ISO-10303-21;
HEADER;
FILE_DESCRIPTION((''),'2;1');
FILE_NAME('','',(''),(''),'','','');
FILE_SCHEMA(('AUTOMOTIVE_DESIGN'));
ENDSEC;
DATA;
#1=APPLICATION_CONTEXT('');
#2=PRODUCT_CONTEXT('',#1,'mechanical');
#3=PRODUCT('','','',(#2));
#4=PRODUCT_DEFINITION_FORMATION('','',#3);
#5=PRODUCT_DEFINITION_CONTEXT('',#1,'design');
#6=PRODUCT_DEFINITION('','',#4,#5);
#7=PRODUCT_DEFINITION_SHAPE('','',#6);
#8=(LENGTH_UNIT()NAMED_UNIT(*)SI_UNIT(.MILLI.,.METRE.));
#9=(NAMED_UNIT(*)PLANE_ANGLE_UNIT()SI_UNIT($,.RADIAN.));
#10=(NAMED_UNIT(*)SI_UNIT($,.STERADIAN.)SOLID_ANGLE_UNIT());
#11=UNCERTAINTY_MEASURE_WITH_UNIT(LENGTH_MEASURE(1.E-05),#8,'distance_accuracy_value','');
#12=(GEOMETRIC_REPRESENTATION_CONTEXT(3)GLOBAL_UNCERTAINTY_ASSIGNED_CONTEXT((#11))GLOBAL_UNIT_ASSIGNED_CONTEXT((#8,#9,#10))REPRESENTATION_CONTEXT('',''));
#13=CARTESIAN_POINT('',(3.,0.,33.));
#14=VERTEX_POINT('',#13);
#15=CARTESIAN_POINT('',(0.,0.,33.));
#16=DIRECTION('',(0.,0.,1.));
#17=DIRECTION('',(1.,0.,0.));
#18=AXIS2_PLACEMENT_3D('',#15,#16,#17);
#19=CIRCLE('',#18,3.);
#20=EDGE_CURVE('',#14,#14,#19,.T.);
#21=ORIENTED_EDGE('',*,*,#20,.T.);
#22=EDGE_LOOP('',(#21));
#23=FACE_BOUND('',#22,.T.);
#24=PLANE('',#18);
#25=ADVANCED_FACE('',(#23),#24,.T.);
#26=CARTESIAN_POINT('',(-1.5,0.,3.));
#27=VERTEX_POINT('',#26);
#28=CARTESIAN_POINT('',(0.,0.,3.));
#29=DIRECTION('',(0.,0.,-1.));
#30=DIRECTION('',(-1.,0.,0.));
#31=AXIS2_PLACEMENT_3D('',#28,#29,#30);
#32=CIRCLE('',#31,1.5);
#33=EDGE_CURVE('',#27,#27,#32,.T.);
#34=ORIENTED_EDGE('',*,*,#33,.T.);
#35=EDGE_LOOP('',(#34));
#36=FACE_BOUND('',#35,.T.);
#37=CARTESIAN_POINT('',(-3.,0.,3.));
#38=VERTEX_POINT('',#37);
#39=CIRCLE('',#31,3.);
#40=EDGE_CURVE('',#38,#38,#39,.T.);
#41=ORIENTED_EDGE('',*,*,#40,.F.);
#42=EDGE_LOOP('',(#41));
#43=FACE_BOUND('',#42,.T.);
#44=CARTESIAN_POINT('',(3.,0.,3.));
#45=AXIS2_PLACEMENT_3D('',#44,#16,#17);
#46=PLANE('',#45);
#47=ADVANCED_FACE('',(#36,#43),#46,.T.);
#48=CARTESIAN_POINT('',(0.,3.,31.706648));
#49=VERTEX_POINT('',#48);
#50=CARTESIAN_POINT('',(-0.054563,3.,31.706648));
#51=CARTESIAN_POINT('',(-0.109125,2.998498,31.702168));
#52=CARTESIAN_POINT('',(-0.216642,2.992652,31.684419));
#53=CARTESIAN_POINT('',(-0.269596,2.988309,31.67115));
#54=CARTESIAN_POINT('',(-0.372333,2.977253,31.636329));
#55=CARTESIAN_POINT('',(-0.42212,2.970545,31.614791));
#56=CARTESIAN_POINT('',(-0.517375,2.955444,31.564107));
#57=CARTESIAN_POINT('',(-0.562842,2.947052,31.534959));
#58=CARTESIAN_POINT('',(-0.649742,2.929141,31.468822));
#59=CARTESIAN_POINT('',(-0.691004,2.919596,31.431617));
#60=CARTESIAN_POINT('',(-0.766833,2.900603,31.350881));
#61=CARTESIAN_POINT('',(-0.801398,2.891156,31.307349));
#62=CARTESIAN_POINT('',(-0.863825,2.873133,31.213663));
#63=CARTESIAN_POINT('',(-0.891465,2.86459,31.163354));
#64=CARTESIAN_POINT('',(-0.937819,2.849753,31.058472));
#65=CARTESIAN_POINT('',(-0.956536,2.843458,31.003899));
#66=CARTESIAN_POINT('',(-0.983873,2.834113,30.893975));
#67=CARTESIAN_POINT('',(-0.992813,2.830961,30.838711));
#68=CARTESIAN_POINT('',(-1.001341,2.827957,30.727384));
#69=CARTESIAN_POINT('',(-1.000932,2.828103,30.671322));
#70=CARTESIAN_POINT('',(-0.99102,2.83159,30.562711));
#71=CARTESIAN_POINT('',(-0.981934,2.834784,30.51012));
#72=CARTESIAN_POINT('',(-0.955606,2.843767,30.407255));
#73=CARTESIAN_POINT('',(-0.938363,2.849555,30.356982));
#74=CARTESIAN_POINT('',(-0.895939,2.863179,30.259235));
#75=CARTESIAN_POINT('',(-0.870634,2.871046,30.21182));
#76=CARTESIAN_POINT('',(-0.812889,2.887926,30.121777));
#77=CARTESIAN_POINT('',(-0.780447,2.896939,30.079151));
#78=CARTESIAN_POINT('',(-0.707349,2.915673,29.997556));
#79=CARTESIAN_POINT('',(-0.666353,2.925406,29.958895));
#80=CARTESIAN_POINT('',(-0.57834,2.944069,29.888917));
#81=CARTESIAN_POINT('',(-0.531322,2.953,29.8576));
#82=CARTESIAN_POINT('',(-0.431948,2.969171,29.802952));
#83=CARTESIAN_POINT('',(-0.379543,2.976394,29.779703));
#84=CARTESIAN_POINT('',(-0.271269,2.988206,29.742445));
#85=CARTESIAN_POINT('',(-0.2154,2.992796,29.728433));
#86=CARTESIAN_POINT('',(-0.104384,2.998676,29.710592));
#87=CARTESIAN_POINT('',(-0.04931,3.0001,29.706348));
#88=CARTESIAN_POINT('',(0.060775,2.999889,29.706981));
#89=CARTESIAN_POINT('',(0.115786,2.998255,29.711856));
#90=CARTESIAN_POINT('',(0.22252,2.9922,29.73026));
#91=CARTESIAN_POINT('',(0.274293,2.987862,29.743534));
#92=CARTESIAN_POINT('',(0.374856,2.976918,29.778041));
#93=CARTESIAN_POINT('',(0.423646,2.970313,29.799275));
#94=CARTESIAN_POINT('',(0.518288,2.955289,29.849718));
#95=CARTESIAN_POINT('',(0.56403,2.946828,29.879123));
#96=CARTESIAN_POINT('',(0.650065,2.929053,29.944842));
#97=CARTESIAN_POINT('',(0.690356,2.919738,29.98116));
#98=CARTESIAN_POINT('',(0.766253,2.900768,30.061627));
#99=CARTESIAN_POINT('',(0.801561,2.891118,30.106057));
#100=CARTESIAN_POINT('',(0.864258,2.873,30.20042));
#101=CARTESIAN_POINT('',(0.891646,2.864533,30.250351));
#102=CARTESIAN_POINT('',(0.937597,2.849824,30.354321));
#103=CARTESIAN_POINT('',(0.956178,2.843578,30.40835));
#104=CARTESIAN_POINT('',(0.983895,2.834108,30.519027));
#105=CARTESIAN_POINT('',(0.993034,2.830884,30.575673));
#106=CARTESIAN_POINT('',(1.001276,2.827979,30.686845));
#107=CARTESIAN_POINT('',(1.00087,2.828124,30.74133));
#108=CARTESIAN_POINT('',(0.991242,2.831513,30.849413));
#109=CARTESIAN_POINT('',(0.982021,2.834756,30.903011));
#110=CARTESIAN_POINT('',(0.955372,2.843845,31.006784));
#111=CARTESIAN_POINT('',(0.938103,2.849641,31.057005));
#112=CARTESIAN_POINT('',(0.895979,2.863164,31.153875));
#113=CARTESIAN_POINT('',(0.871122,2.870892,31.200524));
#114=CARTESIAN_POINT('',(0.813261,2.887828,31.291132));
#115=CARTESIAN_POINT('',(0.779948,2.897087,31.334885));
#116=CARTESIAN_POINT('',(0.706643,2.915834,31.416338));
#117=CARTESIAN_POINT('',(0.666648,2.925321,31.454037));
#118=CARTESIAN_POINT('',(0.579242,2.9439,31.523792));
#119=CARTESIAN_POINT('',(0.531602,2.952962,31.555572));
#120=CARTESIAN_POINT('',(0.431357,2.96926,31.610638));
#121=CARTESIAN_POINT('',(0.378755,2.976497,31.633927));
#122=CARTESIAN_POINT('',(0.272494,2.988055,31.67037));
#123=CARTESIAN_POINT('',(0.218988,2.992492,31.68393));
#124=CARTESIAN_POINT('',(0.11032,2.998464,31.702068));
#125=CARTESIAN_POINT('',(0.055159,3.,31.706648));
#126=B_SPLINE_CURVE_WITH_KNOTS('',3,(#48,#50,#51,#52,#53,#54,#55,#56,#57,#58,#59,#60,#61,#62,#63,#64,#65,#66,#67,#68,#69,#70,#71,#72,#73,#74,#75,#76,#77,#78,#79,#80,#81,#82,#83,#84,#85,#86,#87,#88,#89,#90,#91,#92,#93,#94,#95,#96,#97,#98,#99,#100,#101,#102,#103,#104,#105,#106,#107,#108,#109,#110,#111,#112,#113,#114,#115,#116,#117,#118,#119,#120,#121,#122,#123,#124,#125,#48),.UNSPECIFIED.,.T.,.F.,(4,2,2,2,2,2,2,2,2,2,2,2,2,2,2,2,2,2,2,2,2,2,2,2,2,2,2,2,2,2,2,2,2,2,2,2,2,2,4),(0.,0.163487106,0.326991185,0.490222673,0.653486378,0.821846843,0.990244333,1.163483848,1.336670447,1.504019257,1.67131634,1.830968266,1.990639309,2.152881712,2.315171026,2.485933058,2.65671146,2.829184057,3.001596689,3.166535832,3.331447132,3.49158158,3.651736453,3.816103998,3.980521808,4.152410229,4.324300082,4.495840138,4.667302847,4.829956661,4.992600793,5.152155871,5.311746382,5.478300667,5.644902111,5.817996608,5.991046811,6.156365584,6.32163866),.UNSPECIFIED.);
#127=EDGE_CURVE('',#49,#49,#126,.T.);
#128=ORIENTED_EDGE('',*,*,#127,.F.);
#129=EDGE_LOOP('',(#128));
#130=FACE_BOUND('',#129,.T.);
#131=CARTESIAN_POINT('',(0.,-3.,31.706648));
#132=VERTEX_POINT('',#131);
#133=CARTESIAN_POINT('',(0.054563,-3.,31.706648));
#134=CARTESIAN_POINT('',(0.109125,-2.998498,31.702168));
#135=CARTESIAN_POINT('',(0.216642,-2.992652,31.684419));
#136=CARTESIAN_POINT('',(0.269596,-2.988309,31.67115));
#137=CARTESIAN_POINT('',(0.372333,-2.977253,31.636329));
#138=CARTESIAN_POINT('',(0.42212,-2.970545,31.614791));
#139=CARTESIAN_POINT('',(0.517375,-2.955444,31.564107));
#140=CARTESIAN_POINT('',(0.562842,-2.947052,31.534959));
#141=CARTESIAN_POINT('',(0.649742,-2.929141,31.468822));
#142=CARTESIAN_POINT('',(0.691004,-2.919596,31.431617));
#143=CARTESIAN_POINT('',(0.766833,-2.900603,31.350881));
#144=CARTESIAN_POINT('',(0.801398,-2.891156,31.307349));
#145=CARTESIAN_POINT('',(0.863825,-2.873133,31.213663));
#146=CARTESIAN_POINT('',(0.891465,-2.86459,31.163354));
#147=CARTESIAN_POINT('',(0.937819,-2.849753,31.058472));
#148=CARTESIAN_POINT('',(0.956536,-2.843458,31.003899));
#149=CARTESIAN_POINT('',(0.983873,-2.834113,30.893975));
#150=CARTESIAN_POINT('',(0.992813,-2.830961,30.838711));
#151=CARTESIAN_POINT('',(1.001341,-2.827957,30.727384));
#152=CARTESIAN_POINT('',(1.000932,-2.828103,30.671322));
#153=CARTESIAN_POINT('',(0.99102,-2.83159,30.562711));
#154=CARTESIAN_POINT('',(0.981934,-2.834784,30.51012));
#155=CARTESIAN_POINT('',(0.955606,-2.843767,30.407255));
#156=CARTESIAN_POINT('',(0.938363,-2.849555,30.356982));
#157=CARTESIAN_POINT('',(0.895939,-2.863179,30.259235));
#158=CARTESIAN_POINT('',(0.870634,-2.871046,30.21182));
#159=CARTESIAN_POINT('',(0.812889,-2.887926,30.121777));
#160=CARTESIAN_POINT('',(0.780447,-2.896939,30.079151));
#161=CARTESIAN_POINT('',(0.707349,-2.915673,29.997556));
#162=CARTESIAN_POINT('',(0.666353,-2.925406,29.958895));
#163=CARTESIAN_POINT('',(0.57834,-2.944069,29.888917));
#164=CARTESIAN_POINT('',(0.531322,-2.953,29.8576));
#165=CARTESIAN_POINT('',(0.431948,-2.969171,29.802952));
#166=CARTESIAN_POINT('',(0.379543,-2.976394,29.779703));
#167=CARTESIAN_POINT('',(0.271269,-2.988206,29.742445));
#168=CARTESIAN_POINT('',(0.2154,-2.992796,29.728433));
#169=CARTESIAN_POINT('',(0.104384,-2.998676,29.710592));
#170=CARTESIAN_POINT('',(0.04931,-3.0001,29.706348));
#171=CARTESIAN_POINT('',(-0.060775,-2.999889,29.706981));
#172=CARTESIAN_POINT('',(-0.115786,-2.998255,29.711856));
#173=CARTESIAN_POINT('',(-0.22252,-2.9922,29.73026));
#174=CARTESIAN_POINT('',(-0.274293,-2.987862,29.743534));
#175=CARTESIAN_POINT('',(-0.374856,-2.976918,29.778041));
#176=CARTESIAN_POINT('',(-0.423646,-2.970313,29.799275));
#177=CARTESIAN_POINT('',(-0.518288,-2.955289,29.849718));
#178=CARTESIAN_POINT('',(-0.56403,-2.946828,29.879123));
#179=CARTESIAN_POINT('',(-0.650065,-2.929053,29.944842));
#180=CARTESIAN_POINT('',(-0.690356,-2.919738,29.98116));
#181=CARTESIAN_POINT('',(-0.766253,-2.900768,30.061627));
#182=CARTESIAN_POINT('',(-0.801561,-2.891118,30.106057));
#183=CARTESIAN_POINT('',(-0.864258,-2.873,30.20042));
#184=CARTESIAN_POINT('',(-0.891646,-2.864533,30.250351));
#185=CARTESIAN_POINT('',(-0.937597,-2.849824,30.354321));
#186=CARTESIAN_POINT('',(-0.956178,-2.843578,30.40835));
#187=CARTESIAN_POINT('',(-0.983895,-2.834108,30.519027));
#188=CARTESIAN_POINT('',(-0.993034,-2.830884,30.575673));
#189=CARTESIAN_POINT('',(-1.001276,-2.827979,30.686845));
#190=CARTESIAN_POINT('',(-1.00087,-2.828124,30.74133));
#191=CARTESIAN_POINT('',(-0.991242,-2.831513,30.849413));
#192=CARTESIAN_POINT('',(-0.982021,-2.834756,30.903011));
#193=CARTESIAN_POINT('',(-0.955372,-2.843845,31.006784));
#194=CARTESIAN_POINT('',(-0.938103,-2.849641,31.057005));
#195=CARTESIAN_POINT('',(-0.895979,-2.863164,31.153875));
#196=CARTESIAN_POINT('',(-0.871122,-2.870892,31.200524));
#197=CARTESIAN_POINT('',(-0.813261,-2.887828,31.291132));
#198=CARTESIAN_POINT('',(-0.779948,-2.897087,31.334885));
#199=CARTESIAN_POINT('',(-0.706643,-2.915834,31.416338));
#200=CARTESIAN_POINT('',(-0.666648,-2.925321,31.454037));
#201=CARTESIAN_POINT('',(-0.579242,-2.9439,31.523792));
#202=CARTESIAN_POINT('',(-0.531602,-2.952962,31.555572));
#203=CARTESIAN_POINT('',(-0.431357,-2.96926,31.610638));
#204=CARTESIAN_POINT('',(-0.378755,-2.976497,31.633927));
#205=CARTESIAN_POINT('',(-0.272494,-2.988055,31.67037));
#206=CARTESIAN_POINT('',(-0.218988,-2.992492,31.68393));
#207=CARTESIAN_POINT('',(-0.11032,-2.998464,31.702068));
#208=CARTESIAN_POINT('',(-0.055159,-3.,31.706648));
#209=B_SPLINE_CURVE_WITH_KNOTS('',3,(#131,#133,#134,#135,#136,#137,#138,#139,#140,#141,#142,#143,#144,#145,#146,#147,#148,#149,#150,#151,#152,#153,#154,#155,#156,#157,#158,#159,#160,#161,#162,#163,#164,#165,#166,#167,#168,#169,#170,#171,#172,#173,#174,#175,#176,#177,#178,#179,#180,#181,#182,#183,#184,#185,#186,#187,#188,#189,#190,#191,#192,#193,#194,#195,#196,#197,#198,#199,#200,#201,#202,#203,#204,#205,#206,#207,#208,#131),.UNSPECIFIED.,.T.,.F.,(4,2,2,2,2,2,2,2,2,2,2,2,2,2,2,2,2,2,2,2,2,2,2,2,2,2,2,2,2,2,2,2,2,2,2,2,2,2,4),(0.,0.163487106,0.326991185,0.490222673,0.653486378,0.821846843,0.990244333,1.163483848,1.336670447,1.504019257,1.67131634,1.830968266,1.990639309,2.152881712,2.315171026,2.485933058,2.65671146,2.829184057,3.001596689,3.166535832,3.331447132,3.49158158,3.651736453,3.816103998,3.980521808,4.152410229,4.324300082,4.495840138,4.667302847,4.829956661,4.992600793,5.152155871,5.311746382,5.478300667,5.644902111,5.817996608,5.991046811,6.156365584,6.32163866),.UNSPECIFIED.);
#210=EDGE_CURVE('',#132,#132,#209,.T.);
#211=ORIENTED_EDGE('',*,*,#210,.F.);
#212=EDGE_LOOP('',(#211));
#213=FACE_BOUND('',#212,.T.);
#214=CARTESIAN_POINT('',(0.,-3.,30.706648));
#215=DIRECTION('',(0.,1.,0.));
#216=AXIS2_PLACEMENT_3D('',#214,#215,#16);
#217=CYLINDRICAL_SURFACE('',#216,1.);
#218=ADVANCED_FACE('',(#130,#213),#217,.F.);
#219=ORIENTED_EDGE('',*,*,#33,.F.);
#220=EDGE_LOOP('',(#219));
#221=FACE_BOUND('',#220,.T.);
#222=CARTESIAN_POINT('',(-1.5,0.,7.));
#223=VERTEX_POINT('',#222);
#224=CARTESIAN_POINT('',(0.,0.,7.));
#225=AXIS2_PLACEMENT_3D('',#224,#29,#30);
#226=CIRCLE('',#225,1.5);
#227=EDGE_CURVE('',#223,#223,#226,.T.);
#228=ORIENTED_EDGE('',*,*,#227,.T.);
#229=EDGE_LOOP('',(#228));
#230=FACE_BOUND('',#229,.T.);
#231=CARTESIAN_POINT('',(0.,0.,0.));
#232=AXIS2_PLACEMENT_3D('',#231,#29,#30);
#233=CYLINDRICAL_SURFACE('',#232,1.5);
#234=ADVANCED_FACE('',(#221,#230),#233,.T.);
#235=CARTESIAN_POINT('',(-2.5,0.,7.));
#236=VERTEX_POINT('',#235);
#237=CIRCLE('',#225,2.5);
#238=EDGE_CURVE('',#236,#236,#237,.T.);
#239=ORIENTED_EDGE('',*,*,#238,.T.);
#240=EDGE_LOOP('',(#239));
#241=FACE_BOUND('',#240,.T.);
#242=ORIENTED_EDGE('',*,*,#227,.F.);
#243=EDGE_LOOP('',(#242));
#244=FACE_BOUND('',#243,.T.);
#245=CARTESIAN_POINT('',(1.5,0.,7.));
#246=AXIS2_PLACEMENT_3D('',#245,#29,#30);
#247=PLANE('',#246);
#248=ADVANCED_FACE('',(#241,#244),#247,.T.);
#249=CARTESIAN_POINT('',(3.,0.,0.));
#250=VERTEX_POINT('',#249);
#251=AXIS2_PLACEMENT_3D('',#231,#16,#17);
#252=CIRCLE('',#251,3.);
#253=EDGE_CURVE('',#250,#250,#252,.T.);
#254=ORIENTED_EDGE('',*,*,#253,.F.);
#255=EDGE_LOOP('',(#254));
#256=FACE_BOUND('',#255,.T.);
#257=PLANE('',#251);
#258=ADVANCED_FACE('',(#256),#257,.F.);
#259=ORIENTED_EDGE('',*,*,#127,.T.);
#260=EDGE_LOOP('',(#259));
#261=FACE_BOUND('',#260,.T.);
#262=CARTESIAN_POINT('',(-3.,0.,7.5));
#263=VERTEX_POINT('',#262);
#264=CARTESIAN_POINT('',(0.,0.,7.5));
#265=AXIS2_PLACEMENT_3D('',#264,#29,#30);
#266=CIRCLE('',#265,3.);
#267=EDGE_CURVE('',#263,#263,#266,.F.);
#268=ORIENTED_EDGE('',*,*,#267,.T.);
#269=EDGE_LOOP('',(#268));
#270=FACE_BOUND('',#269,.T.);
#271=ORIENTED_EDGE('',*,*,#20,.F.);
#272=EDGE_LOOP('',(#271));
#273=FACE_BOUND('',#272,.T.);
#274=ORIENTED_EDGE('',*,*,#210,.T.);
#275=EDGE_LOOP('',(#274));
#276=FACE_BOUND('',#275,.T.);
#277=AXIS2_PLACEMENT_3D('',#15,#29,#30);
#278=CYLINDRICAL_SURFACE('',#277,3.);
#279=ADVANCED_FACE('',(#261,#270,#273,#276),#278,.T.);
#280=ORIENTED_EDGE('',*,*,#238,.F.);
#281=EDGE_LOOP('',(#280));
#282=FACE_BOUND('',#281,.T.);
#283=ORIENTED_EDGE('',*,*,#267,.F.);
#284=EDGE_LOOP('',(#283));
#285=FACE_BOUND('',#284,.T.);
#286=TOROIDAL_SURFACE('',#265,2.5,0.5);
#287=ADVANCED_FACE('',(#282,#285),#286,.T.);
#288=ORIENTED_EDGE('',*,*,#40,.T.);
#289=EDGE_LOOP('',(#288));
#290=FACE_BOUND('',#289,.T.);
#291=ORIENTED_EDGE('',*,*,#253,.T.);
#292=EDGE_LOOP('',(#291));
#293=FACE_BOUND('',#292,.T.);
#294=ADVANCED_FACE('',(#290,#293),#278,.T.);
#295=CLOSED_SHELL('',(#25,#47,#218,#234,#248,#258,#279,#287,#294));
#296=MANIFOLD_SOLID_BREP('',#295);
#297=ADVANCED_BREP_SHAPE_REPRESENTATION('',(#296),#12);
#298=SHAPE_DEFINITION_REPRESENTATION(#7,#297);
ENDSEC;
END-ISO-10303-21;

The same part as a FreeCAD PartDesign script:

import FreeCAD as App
import Part
import Sketcher

V = App.Vector


def edges_at(feature, points):
    """Names of the edges that pass closest to the given points."""
    edges = feature.Shape.Edges
    near = lambda p: min(range(len(edges)), key=lambda i: edges[i].distToShape(Part.Vertex(*p))[0])
    return sorted({f"Edge{near(p) + 1}" for p in points})

doc = App.newDocument("Part")
body = doc.addObject("PartDesign::Body", "Body")

# Sketch on XY plane
sketch1 = doc.addObject("Sketcher::SketchObject", "Sketch")
body.addObject(sketch1)
sketch1.AttachmentSupport = (doc.XY_Plane, [""])
sketch1.MapMode = "FlatFace"
sketch1.addGeometry(Part.Circle(V(0, 0, 0), V(0, 0, 1), 3), False)
sketch1.addConstraint(Sketcher.Constraint("Coincident", 0, 3, -1, 1))
sketch1.addConstraint(Sketcher.Constraint("Diameter", 0, 6.0))
pad1 = doc.addObject("PartDesign::Pad", "Pad")
body.addObject(pad1)
pad1.Profile = sketch1
pad1.Length = 33

# Sketch on XZ plane
sketch2 = doc.addObject("Sketcher::SketchObject", "Sketch001")
body.addObject(sketch2)
sketch2.AttachmentSupport = (doc.XZ_Plane, [""])
sketch2.MapMode = "FlatFace"
sketch2.addGeometry(Part.LineSegment(V(1.5, 3, 0), V(1.5, 7, 0)), False)
sketch2.addGeometry(Part.LineSegment(V(1.5, 7, 0), V(3, 7, 0)), False)
sketch2.addGeometry(Part.LineSegment(V(3, 7, 0), V(3, 3, 0)), False)
sketch2.addGeometry(Part.LineSegment(V(3, 3, 0), V(1.5, 3, 0)), False)
sketch2.addConstraint(Sketcher.Constraint("Coincident", 0, 2, 1, 1))
sketch2.addConstraint(Sketcher.Constraint("Coincident", 1, 2, 2, 1))
sketch2.addConstraint(Sketcher.Constraint("Coincident", 2, 2, 3, 1))
sketch2.addConstraint(Sketcher.Constraint("Coincident", 3, 2, 0, 1))
sketch2.addConstraint(Sketcher.Constraint("Vertical", 0))
sketch2.addConstraint(Sketcher.Constraint("Horizontal", 1))
sketch2.addConstraint(Sketcher.Constraint("Vertical", 2))
sketch2.addConstraint(Sketcher.Constraint("Horizontal", 3))
sketch2.addConstraint(Sketcher.Constraint("DistanceY", 0, 1, 0, 2, 4.0))
sketch2.addConstraint(Sketcher.Constraint("DistanceX", 1, 1, 1, 2, 1.5))
sketch2.addConstraint(Sketcher.Constraint("DistanceY", -1, 1, 0, 2, 7.0))
sketch2.addConstraint(Sketcher.Constraint("DistanceX", -1, 1, 1, 2, 3.0))
groove = doc.addObject("PartDesign::Groove", "Groove")
body.addObject(groove)
groove.Profile = sketch2
groove.ReferenceAxis = (sketch2, ["V_Axis"])
groove.Angle = 360
doc.recompute()

fillet = doc.addObject("PartDesign::Fillet", "Fillet")
body.addObject(fillet)
fillet.Base = (groove, edges_at(groove, [(-3, 0, 7)]))
fillet.Radius = 0.5

# Sketch on XZ plane
sketch3 = doc.addObject("Sketcher::SketchObject", "Sketch002")
body.addObject(sketch3)
sketch3.AttachmentSupport = (doc.XZ_Plane, [""])
sketch3.MapMode = "FlatFace"
sketch3.addGeometry(Part.Circle(V(0, 30.7, 0), V(0, 0, 1), 1), False)
sketch3.addConstraint(Sketcher.Constraint("PointOnObject", 0, 3, -2))
sketch3.addConstraint(Sketcher.Constraint("Diameter", 0, 2.0))
sketch3.addConstraint(Sketcher.Constraint("DistanceY", -1, 1, 0, 3, 30.706648))
pocket1 = doc.addObject("PartDesign::Pocket", "Pocket")
body.addObject(pocket1)
pocket1.Profile = sketch3
pocket1.Type = "ThroughAll"
pocket1.Midplane = True

doc.recompute()
